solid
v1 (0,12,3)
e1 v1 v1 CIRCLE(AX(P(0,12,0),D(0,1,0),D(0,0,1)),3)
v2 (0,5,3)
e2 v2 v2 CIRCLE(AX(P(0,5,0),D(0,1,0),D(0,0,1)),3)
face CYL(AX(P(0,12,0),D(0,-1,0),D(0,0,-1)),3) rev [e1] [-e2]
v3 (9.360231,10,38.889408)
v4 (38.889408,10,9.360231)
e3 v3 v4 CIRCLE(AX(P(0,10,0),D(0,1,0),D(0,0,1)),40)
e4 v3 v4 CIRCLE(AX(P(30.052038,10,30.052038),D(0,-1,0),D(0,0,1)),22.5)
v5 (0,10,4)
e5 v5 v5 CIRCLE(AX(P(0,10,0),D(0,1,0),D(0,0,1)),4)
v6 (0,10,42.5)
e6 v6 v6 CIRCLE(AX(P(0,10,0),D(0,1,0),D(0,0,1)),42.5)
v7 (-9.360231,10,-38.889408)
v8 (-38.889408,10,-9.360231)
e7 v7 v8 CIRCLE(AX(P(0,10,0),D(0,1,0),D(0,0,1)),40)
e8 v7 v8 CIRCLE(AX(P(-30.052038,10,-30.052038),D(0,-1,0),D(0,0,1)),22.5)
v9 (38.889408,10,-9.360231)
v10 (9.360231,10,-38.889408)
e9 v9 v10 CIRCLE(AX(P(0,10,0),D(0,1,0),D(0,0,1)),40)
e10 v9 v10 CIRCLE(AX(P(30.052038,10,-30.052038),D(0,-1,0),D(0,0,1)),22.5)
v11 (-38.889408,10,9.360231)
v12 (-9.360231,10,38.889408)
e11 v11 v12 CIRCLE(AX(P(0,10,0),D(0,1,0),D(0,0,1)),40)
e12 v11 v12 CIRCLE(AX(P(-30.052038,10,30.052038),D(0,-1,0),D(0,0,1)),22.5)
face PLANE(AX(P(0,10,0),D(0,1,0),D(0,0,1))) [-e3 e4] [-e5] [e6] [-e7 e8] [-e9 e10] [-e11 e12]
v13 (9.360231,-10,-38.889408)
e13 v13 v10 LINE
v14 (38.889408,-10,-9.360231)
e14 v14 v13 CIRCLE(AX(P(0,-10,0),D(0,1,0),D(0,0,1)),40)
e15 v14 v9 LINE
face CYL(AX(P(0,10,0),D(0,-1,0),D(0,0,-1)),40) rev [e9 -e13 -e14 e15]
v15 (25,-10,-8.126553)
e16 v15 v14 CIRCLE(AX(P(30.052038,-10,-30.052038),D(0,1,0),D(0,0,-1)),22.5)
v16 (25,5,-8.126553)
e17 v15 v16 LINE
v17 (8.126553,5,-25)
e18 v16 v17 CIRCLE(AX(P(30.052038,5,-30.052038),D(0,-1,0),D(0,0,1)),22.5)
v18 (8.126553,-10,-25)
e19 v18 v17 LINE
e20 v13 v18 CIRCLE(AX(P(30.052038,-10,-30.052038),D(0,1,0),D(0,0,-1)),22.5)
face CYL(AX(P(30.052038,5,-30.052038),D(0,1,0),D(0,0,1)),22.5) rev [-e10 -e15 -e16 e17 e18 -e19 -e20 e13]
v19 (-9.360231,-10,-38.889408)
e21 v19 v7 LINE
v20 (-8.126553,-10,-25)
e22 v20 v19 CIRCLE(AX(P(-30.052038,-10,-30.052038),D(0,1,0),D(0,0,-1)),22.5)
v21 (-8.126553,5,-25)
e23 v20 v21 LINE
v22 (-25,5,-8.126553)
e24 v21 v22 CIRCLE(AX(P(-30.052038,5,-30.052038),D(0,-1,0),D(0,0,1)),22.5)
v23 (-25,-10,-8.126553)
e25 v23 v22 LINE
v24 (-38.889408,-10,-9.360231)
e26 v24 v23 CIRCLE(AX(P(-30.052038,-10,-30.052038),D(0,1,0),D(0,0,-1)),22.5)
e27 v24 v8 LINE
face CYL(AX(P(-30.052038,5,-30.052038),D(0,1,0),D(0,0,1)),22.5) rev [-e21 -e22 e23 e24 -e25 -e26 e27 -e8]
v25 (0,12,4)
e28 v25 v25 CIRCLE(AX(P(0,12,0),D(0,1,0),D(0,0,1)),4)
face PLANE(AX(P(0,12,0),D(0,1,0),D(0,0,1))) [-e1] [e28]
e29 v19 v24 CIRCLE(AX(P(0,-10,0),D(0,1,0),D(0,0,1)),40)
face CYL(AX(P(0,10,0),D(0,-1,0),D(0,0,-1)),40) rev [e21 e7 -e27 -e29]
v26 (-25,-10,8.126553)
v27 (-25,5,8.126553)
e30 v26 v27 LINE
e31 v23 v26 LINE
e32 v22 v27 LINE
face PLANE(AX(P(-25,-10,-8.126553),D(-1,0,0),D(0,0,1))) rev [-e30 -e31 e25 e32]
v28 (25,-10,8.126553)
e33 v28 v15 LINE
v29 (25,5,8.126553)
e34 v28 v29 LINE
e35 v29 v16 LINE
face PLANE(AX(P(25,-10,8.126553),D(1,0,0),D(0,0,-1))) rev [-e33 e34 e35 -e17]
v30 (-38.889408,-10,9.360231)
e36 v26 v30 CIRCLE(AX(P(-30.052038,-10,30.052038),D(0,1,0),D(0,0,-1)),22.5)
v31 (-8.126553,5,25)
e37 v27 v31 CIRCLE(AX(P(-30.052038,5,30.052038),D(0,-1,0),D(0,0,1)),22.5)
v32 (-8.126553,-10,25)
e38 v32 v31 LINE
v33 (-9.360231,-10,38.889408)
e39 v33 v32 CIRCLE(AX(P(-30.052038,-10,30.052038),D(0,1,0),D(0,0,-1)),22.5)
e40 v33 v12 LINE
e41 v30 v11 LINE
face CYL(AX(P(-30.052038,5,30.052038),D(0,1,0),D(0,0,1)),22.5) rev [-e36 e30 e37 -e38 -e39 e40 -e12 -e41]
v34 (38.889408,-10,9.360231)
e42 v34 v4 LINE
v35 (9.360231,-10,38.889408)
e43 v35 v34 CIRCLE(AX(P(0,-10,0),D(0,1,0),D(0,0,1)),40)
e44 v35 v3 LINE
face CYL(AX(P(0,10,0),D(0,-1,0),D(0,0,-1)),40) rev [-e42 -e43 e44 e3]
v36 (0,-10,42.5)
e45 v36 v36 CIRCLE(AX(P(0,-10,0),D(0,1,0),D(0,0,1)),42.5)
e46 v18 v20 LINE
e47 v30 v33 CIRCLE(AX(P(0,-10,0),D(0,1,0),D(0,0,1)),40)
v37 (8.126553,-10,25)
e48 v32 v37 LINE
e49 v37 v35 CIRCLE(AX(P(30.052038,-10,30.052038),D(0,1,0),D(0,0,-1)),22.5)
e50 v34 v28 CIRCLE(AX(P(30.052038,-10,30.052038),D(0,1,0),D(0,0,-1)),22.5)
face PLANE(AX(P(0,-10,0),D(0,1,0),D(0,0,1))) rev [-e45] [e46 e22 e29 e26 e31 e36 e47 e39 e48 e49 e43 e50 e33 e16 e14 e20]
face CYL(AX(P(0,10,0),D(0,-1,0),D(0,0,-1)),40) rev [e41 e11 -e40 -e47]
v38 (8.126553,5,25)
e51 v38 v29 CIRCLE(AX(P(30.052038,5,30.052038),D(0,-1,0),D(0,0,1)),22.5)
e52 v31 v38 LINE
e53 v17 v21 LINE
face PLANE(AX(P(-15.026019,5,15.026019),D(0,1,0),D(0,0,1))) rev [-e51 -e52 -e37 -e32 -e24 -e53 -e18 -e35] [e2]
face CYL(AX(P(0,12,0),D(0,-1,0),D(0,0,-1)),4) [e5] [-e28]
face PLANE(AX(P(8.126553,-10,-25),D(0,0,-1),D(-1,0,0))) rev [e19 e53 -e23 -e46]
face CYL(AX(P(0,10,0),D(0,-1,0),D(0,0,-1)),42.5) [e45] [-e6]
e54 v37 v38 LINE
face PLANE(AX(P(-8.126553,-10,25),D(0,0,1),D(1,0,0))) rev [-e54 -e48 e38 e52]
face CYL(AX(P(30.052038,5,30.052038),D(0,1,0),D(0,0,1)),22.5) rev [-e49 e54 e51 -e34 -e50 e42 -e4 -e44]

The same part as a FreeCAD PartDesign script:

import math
import FreeCAD as App
import Part
import Sketcher

V = App.Vector

doc = App.newDocument("Part")
body = doc.addObject("PartDesign::Body", "Body")

sketch1 = body.newObject("Sketcher::SketchObject", "Sketch")
sketch1.AttachmentSupport = (doc.getObject("XZ_Plane"), [""])
sketch1.MapMode = "FlatFace"
sketch1.addGeometry([
    Part.Circle(V(0, 0, 0), V(0, 0, 1), 42),
    Part.Circle(V(0, 0, 0), V(0, 0, 1), 40),
], False)
sketch1.addConstraint([
    Sketcher.Constraint("Coincident", 0, 3, -1, 1),
    Sketcher.Constraint("Coincident", 1, 3, -1, 1),
    Sketcher.Constraint("Diameter", 0, 85.0),
    Sketcher.Constraint("Diameter", 1, 80.0),
])
pad1 = body.newObject("PartDesign::Pad", "Pad")
pad1.Profile = sketch1
pad1.Length = 20
pad1.Midplane = True

sketch2 = body.newObject("Sketcher::SketchObject", "Sketch001")
sketch2.AttachmentSupport = (doc.getObject("XZ_Plane"), [""])
sketch2.MapMode = "FlatFace"
sketch2.AttachmentOffset = App.Placement(V(0, 0, -5), App.Rotation())
sketch2.addGeometry([
    Part.ArcOfCircle(Part.Circle(V(-30, -30, 0), V(0, 0, 1), 22), math.radians(-23), math.radians(113)),
    Part.ArcOfCircle(Part.Circle(V(0, 0, 0), V(0, 0, 1), 40), math.radians(166), math.radians(194)),
    Part.ArcOfCircle(Part.Circle(V(-30, 30, 0), V(0, 0, 1), 22), math.radians(-113), math.radians(23)),
    Part.ArcOfCircle(Part.Circle(V(0, 0, 0), V(0, 0, 1), 40), math.radians(76), math.radians(104)),
    Part.ArcOfCircle(Part.Circle(V(30, 30, 0), V(0, 0, 1), 22), math.radians(157), math.radians(293)),
    Part.ArcOfCircle(Part.Circle(V(0, 0, 0), V(0, 0, 1), 40), math.radians(-14), math.radians(14)),
    Part.ArcOfCircle(Part.Circle(V(30, -30, 0), V(0, 0, 1), 22), math.radians(67), math.radians(203)),
    Part.ArcOfCircle(Part.Circle(V(0, 0, 0), V(0, 0, 1), 40), math.radians(-104), math.radians(-76)),
], False)
sketch2.addConstraint([
    Sketcher.Constraint("Coincident", 0, 2, 1, 2),
    Sketcher.Constraint("Coincident", 1, 1, 2, 1),
    Sketcher.Constraint("Coincident", 2, 2, 3, 2),
    Sketcher.Constraint("Coincident", 3, 1, 4, 1),
    Sketcher.Constraint("Coincident", 4, 2, 5, 2),
    Sketcher.Constraint("Coincident", 5, 1, 6, 1),
    Sketcher.Constraint("Coincident", 6, 2, 7, 2),
    Sketcher.Constraint("Coincident", 7, 1, 0, 1),
    Sketcher.Constraint("Coincident", 1, 3, -1, 1),
    Sketcher.Constraint("Coincident", 3, 3, -1, 1),
    Sketcher.Constraint("Coincident", 5, 3, -1, 1),
    Sketcher.Constraint("Coincident", 7, 3, -1, 1),
    Sketcher.Constraint("Equal", 0, 2),
    Sketcher.Constraint("Equal", 1, 3),
    Sketcher.Constraint("Equal", 2, 4),
    Sketcher.Constraint("Equal", 3, 5),
    Sketcher.Constraint("Equal", 4, 6),
    Sketcher.Constraint("Equal", 5, 7),
    Sketcher.Constraint("Symmetric", 0, 3, 4, 3, -1, 1),
    Sketcher.Constraint("Symmetric", 2, 3, 6, 3, -1, 1),
    Sketcher.Constraint("Symmetric", 2, 3, 4, 3, -2),
    Sketcher.Constraint("Radius", 1, 40.0),
    Sketcher.Constraint("Radius", 0, 22.5),
    Sketcher.Constraint("DistanceX", 0, 3, -1, 1, 30.052038),
    Sketcher.Constraint("DistanceY", 0, 3, -1, 1, 30.052038),
])
pad2 = body.newObject("PartDesign::Pad", "Pad001")
pad2.Profile = sketch2
pad2.Length = 5
pad2.Reversed = True

sketch3 = body.newObject("Sketcher::SketchObject", "Sketch002")
sketch3.AttachmentSupport = (doc.getObject("XZ_Plane"), [""])
sketch3.MapMode = "FlatFace"
sketch3.AttachmentOffset = App.Placement(V(0, 0, -10), App.Rotation())
sketch3.addGeometry([
    Part.Circle(V(0, 0, 0), V(0, 0, 1), 4),
    Part.Circle(V(0, 0, 0), V(0, 0, 1), 3),
], False)
sketch3.addConstraint([
    Sketcher.Constraint("Coincident", 0, 3, -1, 1),
    Sketcher.Constraint("Coincident", 1, 3, -1, 1),
    Sketcher.Constraint("Diameter", 0, 8.0),
    Sketcher.Constraint("Diameter", 1, 6.0),
])
pad3 = body.newObject("PartDesign::Pad", "Pad002")
pad3.Profile = sketch3
pad3.Length = 2
pad3.Reversed = True

sketch4 = body.newObject("Sketcher::SketchObject", "Sketch003")
sketch4.AttachmentSupport = (doc.getObject("XZ_Plane"), [""])
sketch4.MapMode = "FlatFace"
sketch4.AttachmentOffset = App.Placement(V(0, 0, -10), App.Rotation())
sketch4.addGeometry(Part.Circle(V(0, 0, 0), V(0, 0, 1), 3), False)
sketch4.addConstraint([
    Sketcher.Constraint("Coincident", 0, 3, -1, 1),
    Sketcher.Constraint("Diameter", 0, 6.0),
])
pocket1 = body.newObject("PartDesign::Pocket", "Pocket")
pocket1.Profile = sketch4
pocket1.Type = "ThroughAll"
pocket1.Reversed = True

sketch5 = body.newObject("Sketcher::SketchObject", "Sketch004")
sketch5.AttachmentSupport = (doc.getObject("XZ_Plane"), [""])
sketch5.MapMode = "FlatFace"
sketch5.AttachmentOffset = App.Placement(V(0, 0, 10), App.Rotation())
sketch5.addGeometry([
    Part.LineSegment(V(-25, -8, 0), V(-25, 8, 0)),
    Part.ArcOfCircle(Part.Circle(V(-30, 30, 0), V(0, 0, 1), 23), math.radians(-113), math.radians(-77)),
    Part.ArcOfCircle(Part.Circle(V(0, 0, 0), V(0, 0, 1), 40), math.radians(166), math.radians(194)),
    Part.ArcOfCircle(Part.Circle(V(-30, -30, 0), V(0, 0, 1), 23), math.radians(77), math.radians(113)),
    Part.LineSegment(V(-8, 25, 0), V(8, 25, 0)),
    Part.ArcOfCircle(Part.Circle(V(30, 30, 0), V(0, 0, 1), 23), math.radians(157), math.radians(193)),
    Part.ArcOfCircle(Part.Circle(V(0, 0, 0), V(0, 0, 1), 40), math.radians(76), math.radians(104)),
    Part.ArcOfCircle(Part.Circle(V(-30, 30, 0), V(0, 0, 1), 23), math.radians(-13), math.radians(23)),
    Part.LineSegment(V(25, 8, 0), V(25, -8, 0)),
    Part.ArcOfCircle(Part.Circle(V(30, -30, 0), V(0, 0, 1), 23), math.radians(67), math.radians(103)),
    Part.ArcOfCircle(Part.Circle(V(0, 0, 0), V(0, 0, 1), 40), math.radians(-14), math.radians(14)),
    Part.ArcOfCircle(Part.Circle(V(30, 30, 0), V(0, 0, 1), 23), math.radians(-103), math.radians(-67)),
    Part.LineSegment(V(8, -25, 0), V(-8, -25, 0)),
    Part.ArcOfCircle(Part.Circle(V(-30, -30, 0), V(0, 0, 1), 23), math.radians(-23), math.radians(13)),
    Part.ArcOfCircle(Part.Circle(V(0, 0, 0), V(0, 0, 1), 40), math.radians(-104), math.radians(-76)),
    Part.ArcOfCircle(Part.Circle(V(30, -30, 0), V(0, 0, 1), 23), math.radians(167), math.radians(203)),
], False)
sketch5.addConstraint([
    Sketcher.Constraint("Coincident", 0, 2, 1, 2),
    Sketcher.Constraint("Coincident", 1, 1, 2, 1),
    Sketcher.Constraint("Coincident", 2, 2, 3, 2),
    Sketcher.Constraint("Coincident", 3, 1, 0, 1),
    Sketcher.Constraint("Coincident", 4, 2, 5, 2),
    Sketcher.Constraint("Coincident", 5, 1, 6, 1),
    Sketcher.Constraint("Coincident", 6, 2, 7, 2),
    Sketcher.Constraint("Coincident", 7, 1, 4, 1),
    Sketcher.Constraint("Coincident", 8, 2, 9, 2),
    Sketcher.Constraint("Coincident", 9, 1, 10, 1),
    Sketcher.Constraint("Coincident", 10, 2, 11, 2),
    Sketcher.Constraint("Coincident", 11, 1, 8, 1),
    Sketcher.Constraint("Coincident", 12, 2, 13, 2),
    Sketcher.Constraint("Coincident", 13, 1, 14, 1),
    Sketcher.Constraint("Coincident", 14, 2, 15, 2),
    Sketcher.Constraint("Coincident", 15, 1, 12, 1),
    Sketcher.Constraint("Vertical", 0),
    Sketcher.Constraint("Horizontal", 4),
    Sketcher.Constraint("Vertical", 8),
    Sketcher.Constraint("Horizontal", 12),
    Sketcher.Constraint("Coincident", 2, 3, -1, 1),
    Sketcher.Constraint("Coincident", 6, 3, -1, 1),
    Sketcher.Constraint("Coincident", 10, 3, -1, 1),
    Sketcher.Constraint("Coincident", 14, 3, -1, 1),
    Sketcher.Constraint("Coincident", 7, 3, 1, 3),
    Sketcher.Constraint("Coincident", 11, 3, 5, 3),
    Sketcher.Constraint("Coincident", 13, 3, 3, 3),
    Sketcher.Constraint("Coincident", 15, 3, 9, 3),
    Sketcher.Constraint("Equal", 1, 3),
    Sketcher.Constraint("Equal", 3, 5),
    Sketcher.Constraint("Equal", 2, 6),
    Sketcher.Constraint("Equal", 5, 7),
    Sketcher.Constraint("Equal", 7, 9),
    Sketcher.Constraint("Equal", 6, 10),
    Sketcher.Constraint("Equal", 9, 11),
    Sketcher.Constraint("Equal", 11, 13),
    Sketcher.Constraint("Equal", 10, 14),
    Sketcher.Constraint("Equal", 13, 15),
    Sketcher.Constraint("Symmetric", 3, 3, 5, 3, -1, 1),
    Sketcher.Constraint("Symmetric", 1, 3, 9, 3, -1, 1),
    Sketcher.Constraint("Symmetric", 1, 3, 5, 3, -2),
    Sketcher.Constraint("Horizontal", 3, 1, 8, 2),
    Sketcher.Constraint("Vertical", 7, 1, 12, 2),
    Sketcher.Constraint("Equal", 12, 0),
    Sketcher.Constraint("Radius", 2, 40.0),
    Sketcher.Constraint("Radius", 1, 22.5),
    Sketcher.Constraint("DistanceX", 0, 2, -1, 1, 25.0),
    Sketcher.Constraint("DistanceY", -1, 1, 4, 2, 25.0),
    Sketcher.Constraint("DistanceX", 4, 1, 4, 2, 16.253106),
])
pad4 = body.newObject("PartDesign::Pad", "Pad003")
pad4.Profile = sketch5
pad4.Length = 15
pad4.Reversed = True

doc.recompute()
